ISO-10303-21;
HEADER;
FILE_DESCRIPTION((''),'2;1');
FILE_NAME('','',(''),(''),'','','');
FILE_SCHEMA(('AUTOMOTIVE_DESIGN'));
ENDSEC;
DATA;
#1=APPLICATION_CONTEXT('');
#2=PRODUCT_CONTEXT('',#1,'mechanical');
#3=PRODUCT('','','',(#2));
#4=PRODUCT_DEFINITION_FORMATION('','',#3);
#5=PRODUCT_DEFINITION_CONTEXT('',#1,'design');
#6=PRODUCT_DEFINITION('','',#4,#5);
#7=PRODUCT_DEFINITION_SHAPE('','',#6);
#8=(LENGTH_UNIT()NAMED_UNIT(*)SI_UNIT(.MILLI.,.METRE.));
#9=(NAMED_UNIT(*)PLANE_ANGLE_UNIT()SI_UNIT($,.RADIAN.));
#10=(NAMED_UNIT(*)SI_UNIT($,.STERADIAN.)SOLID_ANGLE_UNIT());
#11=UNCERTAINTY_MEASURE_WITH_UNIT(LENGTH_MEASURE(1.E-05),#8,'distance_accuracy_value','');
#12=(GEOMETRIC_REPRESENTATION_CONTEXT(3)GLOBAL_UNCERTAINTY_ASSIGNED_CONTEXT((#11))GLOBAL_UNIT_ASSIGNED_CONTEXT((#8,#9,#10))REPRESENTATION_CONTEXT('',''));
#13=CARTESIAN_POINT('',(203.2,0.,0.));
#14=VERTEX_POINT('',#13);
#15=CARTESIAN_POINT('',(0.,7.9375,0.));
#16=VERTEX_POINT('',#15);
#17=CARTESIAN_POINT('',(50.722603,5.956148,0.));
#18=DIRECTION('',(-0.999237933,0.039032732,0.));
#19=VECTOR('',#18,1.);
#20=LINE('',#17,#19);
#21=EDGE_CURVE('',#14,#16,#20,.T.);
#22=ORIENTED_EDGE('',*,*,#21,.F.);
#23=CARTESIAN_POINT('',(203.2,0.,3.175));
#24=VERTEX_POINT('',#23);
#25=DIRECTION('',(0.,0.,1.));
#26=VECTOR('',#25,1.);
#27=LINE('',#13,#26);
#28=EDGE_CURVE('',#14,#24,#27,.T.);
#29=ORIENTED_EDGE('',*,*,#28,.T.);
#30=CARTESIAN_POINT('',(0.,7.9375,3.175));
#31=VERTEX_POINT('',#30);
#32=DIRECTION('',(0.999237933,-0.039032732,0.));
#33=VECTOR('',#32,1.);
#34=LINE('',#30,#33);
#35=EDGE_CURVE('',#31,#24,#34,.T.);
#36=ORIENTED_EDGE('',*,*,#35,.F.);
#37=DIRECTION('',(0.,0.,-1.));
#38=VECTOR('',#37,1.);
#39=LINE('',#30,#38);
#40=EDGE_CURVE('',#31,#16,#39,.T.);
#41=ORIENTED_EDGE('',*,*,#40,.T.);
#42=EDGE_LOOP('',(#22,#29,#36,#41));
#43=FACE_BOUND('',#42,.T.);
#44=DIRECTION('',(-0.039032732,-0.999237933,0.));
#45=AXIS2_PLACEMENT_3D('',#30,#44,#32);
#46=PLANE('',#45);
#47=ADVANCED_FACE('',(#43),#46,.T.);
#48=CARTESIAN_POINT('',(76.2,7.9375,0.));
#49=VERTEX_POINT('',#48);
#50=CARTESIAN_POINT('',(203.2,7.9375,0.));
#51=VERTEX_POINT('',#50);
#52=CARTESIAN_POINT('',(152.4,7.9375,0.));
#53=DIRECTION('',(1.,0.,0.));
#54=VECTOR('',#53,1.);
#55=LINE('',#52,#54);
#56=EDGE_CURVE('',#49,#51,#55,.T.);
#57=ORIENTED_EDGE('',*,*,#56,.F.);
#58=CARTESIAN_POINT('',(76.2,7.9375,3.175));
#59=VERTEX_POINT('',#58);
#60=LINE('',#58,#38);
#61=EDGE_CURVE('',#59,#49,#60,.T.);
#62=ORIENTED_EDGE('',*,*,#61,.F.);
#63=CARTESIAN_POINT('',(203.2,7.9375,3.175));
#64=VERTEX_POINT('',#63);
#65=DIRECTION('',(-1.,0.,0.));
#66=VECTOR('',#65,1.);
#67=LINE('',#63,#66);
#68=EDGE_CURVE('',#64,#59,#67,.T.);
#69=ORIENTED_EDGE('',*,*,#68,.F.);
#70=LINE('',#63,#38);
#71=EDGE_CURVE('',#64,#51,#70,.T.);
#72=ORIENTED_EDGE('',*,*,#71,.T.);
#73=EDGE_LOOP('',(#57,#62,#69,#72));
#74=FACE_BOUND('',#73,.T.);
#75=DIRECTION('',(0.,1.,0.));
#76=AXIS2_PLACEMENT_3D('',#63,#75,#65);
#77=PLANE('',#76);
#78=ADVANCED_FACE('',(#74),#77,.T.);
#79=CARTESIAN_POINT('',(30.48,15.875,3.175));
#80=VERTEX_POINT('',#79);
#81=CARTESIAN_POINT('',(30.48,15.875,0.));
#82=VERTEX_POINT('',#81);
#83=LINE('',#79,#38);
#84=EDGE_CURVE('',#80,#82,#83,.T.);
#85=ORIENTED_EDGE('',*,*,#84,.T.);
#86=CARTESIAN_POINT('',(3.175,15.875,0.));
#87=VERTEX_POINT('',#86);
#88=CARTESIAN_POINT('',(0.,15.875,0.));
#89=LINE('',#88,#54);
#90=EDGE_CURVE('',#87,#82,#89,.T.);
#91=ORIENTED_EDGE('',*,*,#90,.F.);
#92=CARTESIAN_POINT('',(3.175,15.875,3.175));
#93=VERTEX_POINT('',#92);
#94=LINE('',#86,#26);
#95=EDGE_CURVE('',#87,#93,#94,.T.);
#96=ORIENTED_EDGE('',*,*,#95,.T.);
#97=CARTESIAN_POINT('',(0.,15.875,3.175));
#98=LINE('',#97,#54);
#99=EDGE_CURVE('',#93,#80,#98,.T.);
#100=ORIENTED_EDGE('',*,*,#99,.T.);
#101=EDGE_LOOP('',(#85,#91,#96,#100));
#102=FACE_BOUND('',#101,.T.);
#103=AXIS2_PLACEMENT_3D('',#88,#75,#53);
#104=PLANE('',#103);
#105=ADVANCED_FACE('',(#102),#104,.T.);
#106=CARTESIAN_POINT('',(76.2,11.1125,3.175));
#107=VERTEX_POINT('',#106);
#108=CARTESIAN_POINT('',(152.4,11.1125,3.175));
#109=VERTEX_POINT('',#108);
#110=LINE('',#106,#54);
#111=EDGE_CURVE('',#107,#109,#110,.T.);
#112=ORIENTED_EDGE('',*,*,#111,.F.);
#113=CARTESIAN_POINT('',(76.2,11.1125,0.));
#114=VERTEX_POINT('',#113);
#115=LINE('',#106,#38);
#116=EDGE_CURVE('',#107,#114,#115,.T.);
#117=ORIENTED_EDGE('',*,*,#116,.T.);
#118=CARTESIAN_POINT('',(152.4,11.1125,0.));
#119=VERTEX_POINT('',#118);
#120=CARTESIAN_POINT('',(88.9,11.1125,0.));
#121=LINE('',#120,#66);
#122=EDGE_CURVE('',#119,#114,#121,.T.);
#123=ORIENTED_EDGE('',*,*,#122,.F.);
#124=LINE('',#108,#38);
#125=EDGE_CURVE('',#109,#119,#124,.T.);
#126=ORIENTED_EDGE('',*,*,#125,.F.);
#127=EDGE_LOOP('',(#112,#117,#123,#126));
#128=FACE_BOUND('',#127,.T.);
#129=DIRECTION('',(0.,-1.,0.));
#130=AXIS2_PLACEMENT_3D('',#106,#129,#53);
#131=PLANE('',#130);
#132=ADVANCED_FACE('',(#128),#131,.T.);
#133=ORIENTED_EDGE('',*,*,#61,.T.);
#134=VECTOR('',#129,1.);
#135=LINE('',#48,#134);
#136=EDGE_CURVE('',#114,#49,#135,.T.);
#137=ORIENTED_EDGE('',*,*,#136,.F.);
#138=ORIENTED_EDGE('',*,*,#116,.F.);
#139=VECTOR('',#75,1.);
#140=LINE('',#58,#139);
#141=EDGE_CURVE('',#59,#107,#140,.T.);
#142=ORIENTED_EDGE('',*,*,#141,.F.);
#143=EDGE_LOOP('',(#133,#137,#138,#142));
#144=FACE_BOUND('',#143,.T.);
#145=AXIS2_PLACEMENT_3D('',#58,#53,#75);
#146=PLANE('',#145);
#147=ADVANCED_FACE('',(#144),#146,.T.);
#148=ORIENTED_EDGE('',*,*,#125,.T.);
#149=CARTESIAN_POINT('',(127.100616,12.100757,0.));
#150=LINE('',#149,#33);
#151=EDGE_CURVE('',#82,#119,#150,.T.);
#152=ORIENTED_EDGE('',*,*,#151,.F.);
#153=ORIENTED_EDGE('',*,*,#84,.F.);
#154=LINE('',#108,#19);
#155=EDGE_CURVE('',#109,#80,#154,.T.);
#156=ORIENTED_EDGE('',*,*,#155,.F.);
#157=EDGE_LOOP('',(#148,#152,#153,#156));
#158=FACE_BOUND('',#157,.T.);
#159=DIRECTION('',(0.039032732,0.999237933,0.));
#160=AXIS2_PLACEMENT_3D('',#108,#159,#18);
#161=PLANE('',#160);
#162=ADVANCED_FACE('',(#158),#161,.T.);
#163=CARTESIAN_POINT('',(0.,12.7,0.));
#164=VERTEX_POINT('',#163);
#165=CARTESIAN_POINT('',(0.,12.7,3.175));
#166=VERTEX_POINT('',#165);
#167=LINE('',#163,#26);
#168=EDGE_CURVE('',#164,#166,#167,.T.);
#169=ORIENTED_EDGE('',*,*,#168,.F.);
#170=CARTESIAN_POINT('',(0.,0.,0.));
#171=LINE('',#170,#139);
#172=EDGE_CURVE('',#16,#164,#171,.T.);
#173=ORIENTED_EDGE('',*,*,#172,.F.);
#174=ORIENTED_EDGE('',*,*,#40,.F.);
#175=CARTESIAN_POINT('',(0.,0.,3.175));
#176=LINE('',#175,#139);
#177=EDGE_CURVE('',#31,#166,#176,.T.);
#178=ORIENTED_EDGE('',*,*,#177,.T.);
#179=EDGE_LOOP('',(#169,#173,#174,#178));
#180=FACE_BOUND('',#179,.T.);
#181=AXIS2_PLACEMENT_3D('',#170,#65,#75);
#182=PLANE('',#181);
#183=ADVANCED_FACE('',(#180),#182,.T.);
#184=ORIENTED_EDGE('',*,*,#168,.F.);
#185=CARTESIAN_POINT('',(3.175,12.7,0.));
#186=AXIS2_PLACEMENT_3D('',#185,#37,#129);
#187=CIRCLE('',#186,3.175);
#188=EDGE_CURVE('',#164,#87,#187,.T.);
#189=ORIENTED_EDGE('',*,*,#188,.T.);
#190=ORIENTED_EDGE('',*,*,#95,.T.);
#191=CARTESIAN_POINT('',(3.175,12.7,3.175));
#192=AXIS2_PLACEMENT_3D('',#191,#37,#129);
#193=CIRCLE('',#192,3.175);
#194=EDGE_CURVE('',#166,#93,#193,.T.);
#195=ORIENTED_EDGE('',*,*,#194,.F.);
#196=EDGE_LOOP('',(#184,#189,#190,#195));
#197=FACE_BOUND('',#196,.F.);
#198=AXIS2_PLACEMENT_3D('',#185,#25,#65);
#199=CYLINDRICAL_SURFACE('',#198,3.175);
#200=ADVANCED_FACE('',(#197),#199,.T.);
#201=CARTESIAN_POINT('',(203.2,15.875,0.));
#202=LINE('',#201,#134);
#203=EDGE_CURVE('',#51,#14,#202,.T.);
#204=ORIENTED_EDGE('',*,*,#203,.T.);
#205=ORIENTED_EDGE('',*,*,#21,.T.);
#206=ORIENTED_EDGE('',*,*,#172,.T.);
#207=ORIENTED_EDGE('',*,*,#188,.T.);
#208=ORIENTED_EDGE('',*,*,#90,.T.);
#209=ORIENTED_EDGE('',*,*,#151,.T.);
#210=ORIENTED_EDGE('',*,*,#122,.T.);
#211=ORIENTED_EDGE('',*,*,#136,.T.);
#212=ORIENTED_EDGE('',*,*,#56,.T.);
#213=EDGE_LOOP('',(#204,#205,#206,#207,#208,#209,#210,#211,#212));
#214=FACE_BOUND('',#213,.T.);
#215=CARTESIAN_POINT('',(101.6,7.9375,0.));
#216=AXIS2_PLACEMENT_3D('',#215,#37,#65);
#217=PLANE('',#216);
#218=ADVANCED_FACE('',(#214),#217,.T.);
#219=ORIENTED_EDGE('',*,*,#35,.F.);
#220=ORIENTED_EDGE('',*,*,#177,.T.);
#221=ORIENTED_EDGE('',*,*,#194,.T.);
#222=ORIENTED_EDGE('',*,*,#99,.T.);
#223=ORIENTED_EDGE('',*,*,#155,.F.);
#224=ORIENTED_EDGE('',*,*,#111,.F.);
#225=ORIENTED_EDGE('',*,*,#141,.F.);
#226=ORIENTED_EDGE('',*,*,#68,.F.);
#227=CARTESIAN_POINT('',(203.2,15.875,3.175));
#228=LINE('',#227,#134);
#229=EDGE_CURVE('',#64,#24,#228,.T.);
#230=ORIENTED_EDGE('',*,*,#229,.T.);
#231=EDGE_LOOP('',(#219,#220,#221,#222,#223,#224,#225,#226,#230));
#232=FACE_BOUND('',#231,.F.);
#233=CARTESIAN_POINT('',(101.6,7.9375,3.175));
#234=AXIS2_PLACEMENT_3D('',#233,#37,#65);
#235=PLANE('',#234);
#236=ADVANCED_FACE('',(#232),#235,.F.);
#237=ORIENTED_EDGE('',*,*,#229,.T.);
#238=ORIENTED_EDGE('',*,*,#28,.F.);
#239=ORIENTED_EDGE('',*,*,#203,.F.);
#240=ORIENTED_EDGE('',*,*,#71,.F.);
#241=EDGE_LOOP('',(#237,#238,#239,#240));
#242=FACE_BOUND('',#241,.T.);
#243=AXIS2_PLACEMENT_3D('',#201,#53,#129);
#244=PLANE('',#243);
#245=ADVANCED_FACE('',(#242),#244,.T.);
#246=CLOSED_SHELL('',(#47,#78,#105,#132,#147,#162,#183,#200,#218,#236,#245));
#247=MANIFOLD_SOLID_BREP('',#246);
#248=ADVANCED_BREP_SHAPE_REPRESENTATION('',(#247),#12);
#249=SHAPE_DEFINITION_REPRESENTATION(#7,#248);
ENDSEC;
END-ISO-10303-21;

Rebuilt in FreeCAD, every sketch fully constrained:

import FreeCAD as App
import Part
import Sketcher

V = App.Vector
Q = App.Units.Quantity


def edges_at(feature, points):
    """Names of the edges that pass closest to the given points."""
    edges = feature.Shape.Edges
    near = lambda p: min(range(len(edges)), key=lambda i: edges[i].distToShape(Part.Vertex(*p))[0])
    return sorted({f"Edge{near(p) + 1}" for p in points})


def add_polygon(sketch, points):
    """Adds a closed chain of lines whose ends are joined by coincident constraints."""
    first, n = sketch.GeometryCount, len(points)
    for a, b in zip(points, points[1:] + points[:1]):
        sketch.addGeometry(Part.LineSegment(App.Vector(*a, 0), App.Vector(*b, 0)), False)
    for i in range(n):
        sketch.addConstraint(Sketcher.Constraint("Coincident", first + i, 2, first + (i + 1) % n, 1))

doc = App.newDocument("Part")
body = doc.addObject("PartDesign::Body", "Body")

# Sketch on XY plane
sketch1 = body.newObject("Sketcher::SketchObject", "Sketch")
sketch1.AttachmentSupport = (doc.getObject("XY_Plane"), [""])
sketch1.MapMode = "FlatFace"
add_polygon(sketch1, [(0, 16), (0, 0), (203, 0), (203, 16)])  # lines 0-3
sketch1.addConstraint(Sketcher.Constraint("Vertical", 0))
sketch1.addConstraint(Sketcher.Constraint("Horizontal", 1))
sketch1.addConstraint(Sketcher.Constraint("Vertical", 2))
sketch1.addConstraint(Sketcher.Constraint("Horizontal", 3))
sketch1.addConstraint(Sketcher.Constraint("Coincident", 0, 2, -1, 1))
sketch1.addConstraint(Sketcher.Constraint("DistanceX", 1, 1, 1, 2, Q("8 in")))
sketch1.addConstraint(Sketcher.Constraint("DistanceY", 0, 2, 0, 1, Q("0.625 in")))
pad1 = body.newObject("PartDesign::Pad", "Pad")
pad1.Profile = sketch1
pad1.Length = Q("0.125 in")

# Sketch on XY plane
sketch2 = body.newObject("Sketcher::SketchObject", "Sketch001")
sketch2.AttachmentSupport = (doc.getObject("XY_Plane"), [""])
sketch2.MapMode = "FlatFace"
sketch2.AttachmentOffset = App.Placement(V(0, 0, 0.125 * 25.4), App.Rotation())
add_polygon(sketch2, [(203.2, 11.1), (76.2, 11.1), (76.2, 7.9), (203.2, 7.9)])  # lines 0-3
sketch2.addConstraint(Sketcher.Constraint("Horizontal", 0))
sketch2.addConstraint(Sketcher.Constraint("Vertical", 1))
sketch2.addConstraint(Sketcher.Constraint("Horizontal", 2))
sketch2.addConstraint(Sketcher.Constraint("Vertical", 3))
sketch2.addConstraint(Sketcher.Constraint("DistanceX", 0, 2, 0, 1, Q("5 in")))
sketch2.addConstraint(Sketcher.Constraint("DistanceX", -1, 1, 0, 2, Q("3 in")))
sketch2.addConstraint(Sketcher.Constraint("DistanceY", 1, 2, 1, 1, Q("0.125 in")))
sketch2.addConstraint(Sketcher.Constraint("DistanceY", -1, 1, 0, 2, Q("0.4375 in")))
pocket1 = body.newObject("PartDesign::Pocket", "Pocket")
pocket1.Profile = sketch2
pocket1.Type = "ThroughAll"

# Sketch on XY plane
sketch3 = body.newObject("Sketcher::SketchObject", "Sketch002")
sketch3.AttachmentSupport = (doc.getObject("XY_Plane"), [""])
sketch3.MapMode = "FlatFace"
sketch3.AttachmentOffset = App.Placement(V(0, 0, 0.125 * 25.4), App.Rotation())
add_polygon(sketch3, [(203, 0), (0, 8), (0, 0)])  # lines 0-2
sketch3.addConstraint(Sketcher.Constraint("Vertical", 1))
sketch3.addConstraint(Sketcher.Constraint("Horizontal", 2))
sketch3.addConstraint(Sketcher.Constraint("Coincident", 1, 2, -1, 1))
sketch3.addConstraint(Sketcher.Constraint("DistanceX", 2, 1, 2, 2, Q("8 in")))
sketch3.addConstraint(Sketcher.Constraint("DistanceY", 1, 2, 1, 1, Q("0.3125 in")))
pocket2 = body.newObject("PartDesign::Pocket", "Pocket001")
pocket2.Profile = sketch3
pocket2.Type = "ThroughAll"

# Sketch on XY plane
sketch4 = body.newObject("Sketcher::SketchObject", "Sketch003")
sketch4.AttachmentSupport = (doc.getObject("XY_Plane"), [""])
sketch4.MapMode = "FlatFace"
sketch4.AttachmentOffset = App.Placement(V(0, 0, 0.125 * 25.4), App.Rotation())
add_polygon(sketch4, [(152.4, 11.1), (203.2, 11.1), (203.2, 15.9), (30.5, 15.9)])  # lines 0-3
sketch4.addConstraint(Sketcher.Constraint("Horizontal", 0))
sketch4.addConstraint(Sketcher.Constraint("Vertical", 1))
sketch4.addConstraint(Sketcher.Constraint("Horizontal", 2))
sketch4.addConstraint(Sketcher.Constraint("DistanceX", 0, 1, 0, 2, Q("2 in")))
sketch4.addConstraint(Sketcher.Constraint("DistanceX", 2, 2, 2, 1, Q("6.8 in")))
sketch4.addConstraint(Sketcher.Constraint("DistanceX", -1, 1, 0, 2, Q("8 in")))
sketch4.addConstraint(Sketcher.Constraint("DistanceY", 1, 1, 1, 2, Q("0.1875 in")))
sketch4.addConstraint(Sketcher.Constraint("DistanceY", -1, 1, 0, 2, Q("0.4375 in")))
pocket3 = body.newObject("PartDesign::Pocket", "Pocket002")
pocket3.Profile = sketch4
pocket3.Type = "ThroughAll"
doc.recompute()

fillet = body.newObject("PartDesign::Fillet", "Fillet")
fillet.Base = (pocket3, edges_at(pocket3, [(0, 15.875, 1.587)]))
fillet.Radius = Q("0.125 in")

doc.recompute()
